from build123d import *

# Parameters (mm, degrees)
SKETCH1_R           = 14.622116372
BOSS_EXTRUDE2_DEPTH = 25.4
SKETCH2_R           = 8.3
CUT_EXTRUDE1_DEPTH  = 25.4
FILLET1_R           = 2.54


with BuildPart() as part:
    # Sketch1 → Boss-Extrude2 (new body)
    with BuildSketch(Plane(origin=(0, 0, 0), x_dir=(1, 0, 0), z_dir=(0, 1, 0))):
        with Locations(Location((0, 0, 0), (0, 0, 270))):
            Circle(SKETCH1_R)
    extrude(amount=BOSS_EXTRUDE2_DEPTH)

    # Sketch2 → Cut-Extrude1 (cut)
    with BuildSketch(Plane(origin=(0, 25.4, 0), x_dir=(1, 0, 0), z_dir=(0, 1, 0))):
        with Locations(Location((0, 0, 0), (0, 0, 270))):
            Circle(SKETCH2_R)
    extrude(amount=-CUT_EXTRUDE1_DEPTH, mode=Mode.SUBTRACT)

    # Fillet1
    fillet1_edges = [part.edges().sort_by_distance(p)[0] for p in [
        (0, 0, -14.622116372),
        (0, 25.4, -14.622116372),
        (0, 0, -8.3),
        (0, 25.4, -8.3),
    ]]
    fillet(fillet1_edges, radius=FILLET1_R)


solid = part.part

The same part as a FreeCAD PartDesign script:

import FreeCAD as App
import Part
import Sketcher

V = App.Vector
Q = App.Units.Quantity


def edges_at(feature, points):
    """Names of the edges that pass closest to the given points."""
    edges = feature.Shape.Edges
    near = lambda p: min(range(len(edges)), key=lambda i: edges[i].distToShape(Part.Vertex(*p))[0])
    return sorted({f"Edge{near(p) + 1}" for p in points})

doc = App.newDocument("Part")
body = doc.addObject("PartDesign::Body", "Body")

# Sketch on XZ plane
sketch1 = body.newObject("Sketcher::SketchObject", "Sketch")
sketch1.AttachmentSupport = (doc.getObject("XZ_Plane"), [""])
sketch1.MapMode = "FlatFace"
sketch1.addGeometry(Part.Circle(V(0, 0, 0), V(0, 0, 1), 15), False)
sketch1.addConstraint([
    Sketcher.Constraint("Coincident", 0, 3, -1, 1),
    Sketcher.Constraint("Diameter", 0, Q("29.244233 mm")),
])
pad1 = body.newObject("PartDesign::Pad", "Pad")
pad1.Profile = sketch1
pad1.Length = Q("1 in")
pad1.Reversed = True

# Sketch on XZ plane
sketch2 = body.newObject("Sketcher::SketchObject", "Sketch001")
sketch2.AttachmentSupport = (doc.getObject("XZ_Plane"), [""])
sketch2.MapMode = "FlatFace"
sketch2.AttachmentOffset = App.Placement(V(0, 0, -1 * 25.4), App.Rotation())
sketch2.addGeometry(Part.Circle(V(0, 0, 0), V(0, 0, 1), 8), False)
sketch2.addConstraint([
    Sketcher.Constraint("Coincident", 0, 3, -1, 1),
    Sketcher.Constraint("Diameter", 0, Q("16.6 mm")),
])
pocket1 = body.newObject("PartDesign::Pocket", "Pocket")
pocket1.Profile = sketch2
pocket1.Length = Q("1 in")
pocket1.Reversed = True
doc.recompute()

fillet = body.newObject("PartDesign::Fillet", "Fillet")
fillet.Base = (pocket1, edges_at(pocket1, [
    (0, 0, -14.622),
    (0, 25.4, -14.622),
    (0, 0, -8.3),
    (0, 25.4, -8.3),
]))
fillet.Radius = Q("0.1 in")

doc.recompute()
